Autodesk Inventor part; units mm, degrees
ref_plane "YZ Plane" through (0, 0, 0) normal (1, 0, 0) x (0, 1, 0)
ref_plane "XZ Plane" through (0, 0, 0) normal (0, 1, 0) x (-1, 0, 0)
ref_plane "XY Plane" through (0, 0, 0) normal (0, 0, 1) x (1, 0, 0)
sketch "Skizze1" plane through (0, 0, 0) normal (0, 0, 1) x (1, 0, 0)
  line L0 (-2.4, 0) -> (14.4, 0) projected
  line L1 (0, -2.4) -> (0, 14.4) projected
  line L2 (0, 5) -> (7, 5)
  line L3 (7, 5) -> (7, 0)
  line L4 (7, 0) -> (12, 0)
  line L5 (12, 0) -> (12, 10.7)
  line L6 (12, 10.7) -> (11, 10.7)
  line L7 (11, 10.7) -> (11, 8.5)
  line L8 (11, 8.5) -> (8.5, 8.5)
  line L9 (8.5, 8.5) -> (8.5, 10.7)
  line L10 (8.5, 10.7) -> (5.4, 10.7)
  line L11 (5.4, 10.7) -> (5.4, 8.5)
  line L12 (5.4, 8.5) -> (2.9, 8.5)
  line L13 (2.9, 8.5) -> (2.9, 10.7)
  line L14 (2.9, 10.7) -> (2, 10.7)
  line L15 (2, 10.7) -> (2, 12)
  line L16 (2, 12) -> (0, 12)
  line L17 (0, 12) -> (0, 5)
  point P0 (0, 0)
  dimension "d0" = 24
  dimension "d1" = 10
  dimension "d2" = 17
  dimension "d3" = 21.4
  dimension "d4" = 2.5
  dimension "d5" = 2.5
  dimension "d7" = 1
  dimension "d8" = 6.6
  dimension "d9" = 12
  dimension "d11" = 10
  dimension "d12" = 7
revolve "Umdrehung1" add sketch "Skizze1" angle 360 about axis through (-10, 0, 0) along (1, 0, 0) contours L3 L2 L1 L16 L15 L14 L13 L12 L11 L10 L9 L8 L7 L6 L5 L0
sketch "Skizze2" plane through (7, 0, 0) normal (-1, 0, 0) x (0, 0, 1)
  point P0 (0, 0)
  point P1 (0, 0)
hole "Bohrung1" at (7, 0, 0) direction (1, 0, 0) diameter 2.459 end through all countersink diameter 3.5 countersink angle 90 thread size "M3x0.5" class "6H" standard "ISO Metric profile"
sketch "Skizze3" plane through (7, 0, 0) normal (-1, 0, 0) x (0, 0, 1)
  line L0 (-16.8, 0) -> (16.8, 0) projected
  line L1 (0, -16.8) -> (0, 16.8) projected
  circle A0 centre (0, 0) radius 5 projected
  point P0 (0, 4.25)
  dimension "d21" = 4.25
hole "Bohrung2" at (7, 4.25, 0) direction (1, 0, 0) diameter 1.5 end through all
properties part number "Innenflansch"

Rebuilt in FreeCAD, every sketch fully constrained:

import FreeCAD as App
import Part
import Sketcher
from FreeCAD import Vector


def add_polygon(sketch, points):
    """Adds a closed chain of lines whose ends are joined by coincident constraints."""
    first, n = sketch.GeometryCount, len(points)
    for a, b in zip(points, points[1:] + points[:1]):
        sketch.addGeometry(Part.LineSegment(App.Vector(*a, 0), App.Vector(*b, 0)), False)
    for i in range(n):
        sketch.addConstraint(Sketcher.Constraint("Coincident", first + i, 2, first + (i + 1) % n, 1))

doc = App.newDocument("Part")
body = doc.addObject("PartDesign::Body", "Body")

sketch1 = body.newObject("Sketcher::SketchObject", "Sketch")
sketch1.AttachmentSupport = (doc.getObject("XY_Plane"), [""])
sketch1.MapMode = "FlatFace"
add_polygon(sketch1, [(7, 5), (7, 0), (12, 0), (12, 10.7), (11, 10.7), (11, 8.5), (8.5, 8.5), (8.5, 10.7), (5.4, 10.7), (5.4, 8.5), (2.9, 8.5), (2.9, 10.7), (2, 10.7), (2, 12), (0, 12), (0, 5)])
sketch1.addConstraint(Sketcher.Constraint("Vertical", 0))
sketch1.addConstraint(Sketcher.Constraint("Horizontal", 1))
sketch1.addConstraint(Sketcher.Constraint("Vertical", 2))
sketch1.addConstraint(Sketcher.Constraint("Horizontal", 3))
sketch1.addConstraint(Sketcher.Constraint("Vertical", 4))
sketch1.addConstraint(Sketcher.Constraint("Horizontal", 5))
sketch1.addConstraint(Sketcher.Constraint("Vertical", 6))
sketch1.addConstraint(Sketcher.Constraint("Horizontal", 7))
sketch1.addConstraint(Sketcher.Constraint("Vertical", 8))
sketch1.addConstraint(Sketcher.Constraint("Horizontal", 9))
sketch1.addConstraint(Sketcher.Constraint("Vertical", 10))
sketch1.addConstraint(Sketcher.Constraint("Horizontal", 11))
sketch1.addConstraint(Sketcher.Constraint("Vertical", 12))
sketch1.addConstraint(Sketcher.Constraint("Horizontal", 13))
sketch1.addConstraint(Sketcher.Constraint("Vertical", 14))
sketch1.addConstraint(Sketcher.Constraint("Horizontal", 15))
sketch1.addConstraint(Sketcher.Constraint("PointOnObject", 0, 2, -1))
sketch1.addConstraint(Sketcher.Constraint("PointOnObject", 13, 2, -2))
sketch1.addConstraint(Sketcher.Constraint("Horizontal", 3, 2, 6, 2))
sketch1.addConstraint(Sketcher.Constraint("Horizontal", 5, 2, 8, 2))
sketch1.addConstraint(Sketcher.Constraint("Horizontal", 7, 2, 10, 2))
sketch1.addConstraint(Sketcher.Constraint("Equal", 5, 9))
sketch1.addConstraint(Sketcher.Constraint("Equal", 1, 0))
sketch1.addConstraint(Sketcher.Constraint("Equal", 15, 14))
sketch1.addConstraint(Sketcher.Constraint("DistanceX", 3, 2, 3, 1, 1.0))
sketch1.addConstraint(Sketcher.Constraint("DistanceX", 15, 1, 15, 2, 7.0))
sketch1.addConstraint(Sketcher.Constraint("DistanceX", 5, 2, 5, 1, 2.5))
sketch1.addConstraint(Sketcher.Constraint("DistanceX", -1, 1, 1, 2, 12.0))
sketch1.addConstraint(Sketcher.Constraint("DistanceX", 7, 2, 2, 2, 6.6))
sketch1.addConstraint(Sketcher.Constraint("DistanceX", 13, 2, 13, 1, 2.0))
sketch1.addConstraint(Sketcher.Constraint("DistanceY", 2, 1, 2, 2, 10.7))
sketch1.addConstraint(Sketcher.Constraint("DistanceY", 4, 2, 4, 1, 2.2))
revolution = body.newObject("PartDesign::Revolution", "Revolution")
revolution.Profile = sketch1
revolution.ReferenceAxis = (sketch1, ["H_Axis"])
revolution.Angle = 360

sketch2 = body.newObject("Sketcher::SketchObject", "Sketch001")
sketch2.AttachmentSupport = (doc.getObject("YZ_Plane"), [""])
sketch2.MapMode = "FlatFace"
sketch2.AttachmentOffset = App.Placement(Vector(0, 0, 7), App.Rotation())
sketch2.addGeometry(Part.Circle(Vector(0, 0, 0), Vector(0, 0, 1), 1.2), False)
sketch2.addConstraint(Sketcher.Constraint("Coincident", 0, 3, -1, 1))
sketch2.addConstraint(Sketcher.Constraint("Diameter", 0, 2.459))
doc.recompute()
hole = body.newObject("PartDesign::Hole", "Hole")
hole.Profile = sketch2
hole.ThreadType = "None"
hole.Diameter = 2.459
hole.DepthType = "ThroughAll"
hole.HoleCutType = "Countersink"
hole.HoleCutDiameter = 3.5
hole.HoleCutCountersinkAngle = 90
hole.Reversed = True

sketch3 = body.newObject("Sketcher::SketchObject", "Sketch002")
sketch3.AttachmentSupport = (doc.getObject("YZ_Plane"), [""])
sketch3.MapMode = "FlatFace"
sketch3.AttachmentOffset = App.Placement(Vector(0, 0, 7), App.Rotation())
sketch3.addGeometry(Part.Circle(Vector(4.2, 0, 0), Vector(0, 0, 1), 0.8), False)
sketch3.addConstraint(Sketcher.Constraint("PointOnObject", 0, 3, -1))
sketch3.addConstraint(Sketcher.Constraint("Diameter", 0, 1.5))
sketch3.addConstraint(Sketcher.Constraint("DistanceX", -1, 1, 0, 3, 4.25))
doc.recompute()
hole2 = body.newObject("PartDesign::Hole", "Hole001")
hole2.Profile = sketch3
hole2.ThreadType = "None"
hole2.Diameter = 1.5
hole2.DepthType = "ThroughAll"
hole2.Reversed = True

doc.recompute()
